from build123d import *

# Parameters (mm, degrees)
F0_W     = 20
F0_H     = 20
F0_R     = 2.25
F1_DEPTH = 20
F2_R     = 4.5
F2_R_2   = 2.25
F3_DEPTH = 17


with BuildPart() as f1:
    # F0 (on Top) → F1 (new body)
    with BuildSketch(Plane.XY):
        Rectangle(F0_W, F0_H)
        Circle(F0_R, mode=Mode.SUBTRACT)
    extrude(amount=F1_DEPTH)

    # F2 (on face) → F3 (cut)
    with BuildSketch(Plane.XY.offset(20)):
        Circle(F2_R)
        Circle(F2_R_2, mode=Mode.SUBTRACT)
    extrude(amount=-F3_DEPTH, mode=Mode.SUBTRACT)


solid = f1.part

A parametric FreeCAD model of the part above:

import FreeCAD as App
import Part
import Sketcher
Q = App.Units.Quantity

doc = App.newDocument("Part")
params = doc.addObject("Spreadsheet::Sheet", "Params")
for row, (alias, value) in enumerate([
    ("sketch1_diameter", "4.5 mm"),
    ("sketch1_width", "20 mm"),
    ("pad1_length", "20 mm"),
    ("sketch2_diameter", "9 mm"),
    ("sketch2_diameter2", "4.5 mm"),
    ("pocket1_length", "17 mm"),
], start=1):
    params.set(f"A{row}", alias)
    params.set(f"B{row}", "=" + value)
    params.setAlias(f"B{row}", alias)

body = doc.addObject("PartDesign::Body", "Body")

# Sketch on XY plane
sketch1 = body.newObject("Sketcher::SketchObject", "Sketch")
sketch1.AttachmentSupport = (doc.getObject("XY_Plane"), [""])
sketch1.MapMode = "FlatFace"
sketch1.addGeometry([
    Part.LineSegment(App.Vector(-10, 10, 0), App.Vector(-10, -10, 0)),  # 0
    Part.LineSegment(App.Vector(-10, -10, 0), App.Vector(10, -10, 0)),  # 1
    Part.LineSegment(App.Vector(10, -10, 0), App.Vector(10, 10, 0)),  # 2
    Part.LineSegment(App.Vector(10, 10, 0), App.Vector(-10, 10, 0)),  # 3
    Part.Circle(App.Vector(0, 0, 0), App.Vector(0, 0, 1), 2.2),  # 4
], False)
sketch1.addConstraint([
    Sketcher.Constraint("Coincident", 0, 2, 1, 1),
    Sketcher.Constraint("Coincident", 1, 2, 2, 1),
    Sketcher.Constraint("Coincident", 2, 2, 3, 1),
    Sketcher.Constraint("Coincident", 3, 2, 0, 1),
    Sketcher.Constraint("Vertical", 0),
    Sketcher.Constraint("Horizontal", 1),
    Sketcher.Constraint("Vertical", 2),
    Sketcher.Constraint("Horizontal", 3),
    Sketcher.Constraint("Coincident", 4, 3, -1, 1),
    Sketcher.Constraint("Symmetric", 0, 2, 2, 2, -1, 1),
    Sketcher.Constraint("Equal", 3, 0),
    Sketcher.Constraint("Diameter", 4, Q("4.5 mm")),
    Sketcher.Constraint("DistanceX", 1, 1, 1, 2, Q("20 mm")),
])
sketch1.setExpression("Constraints[11]", "Params.sketch1_diameter")
sketch1.setExpression("Constraints[12]", "Params.sketch1_width")
pad1 = body.newObject("PartDesign::Pad", "Pad")
pad1.Profile = sketch1
pad1.setExpression("Length", "Params.pad1_length")

# Sketch on XY plane
sketch2 = body.newObject("Sketcher::SketchObject", "Sketch001")
sketch2.AttachmentSupport = (doc.getObject("XY_Plane"), [""])
sketch2.MapMode = "FlatFace"
sketch2.AttachmentOffset = App.Placement(App.Vector(0, 0, 20), App.Rotation())
sketch2.addGeometry([
    Part.Circle(App.Vector(0, 0, 0), App.Vector(0, 0, 1), 4.5),
    Part.Circle(App.Vector(0, 0, 0), App.Vector(0, 0, 1), 2.2),
], False)
sketch2.addConstraint([
    Sketcher.Constraint("Coincident", 0, 3, -1, 1),
    Sketcher.Constraint("Coincident", 1, 3, -1, 1),
    Sketcher.Constraint("Diameter", 0, Q("9 mm")),
    Sketcher.Constraint("Diameter", 1, Q("4.5 mm")),
])
sketch2.setExpression("Constraints[2]", "Params.sketch2_diameter")
sketch2.setExpression("Constraints[3]", "Params.sketch2_diameter2")
pocket1 = body.newObject("PartDesign::Pocket", "Pocket")
pocket1.Profile = sketch2
pocket1.setExpression("Length", "Params.pocket1_length")

doc.recompute()
